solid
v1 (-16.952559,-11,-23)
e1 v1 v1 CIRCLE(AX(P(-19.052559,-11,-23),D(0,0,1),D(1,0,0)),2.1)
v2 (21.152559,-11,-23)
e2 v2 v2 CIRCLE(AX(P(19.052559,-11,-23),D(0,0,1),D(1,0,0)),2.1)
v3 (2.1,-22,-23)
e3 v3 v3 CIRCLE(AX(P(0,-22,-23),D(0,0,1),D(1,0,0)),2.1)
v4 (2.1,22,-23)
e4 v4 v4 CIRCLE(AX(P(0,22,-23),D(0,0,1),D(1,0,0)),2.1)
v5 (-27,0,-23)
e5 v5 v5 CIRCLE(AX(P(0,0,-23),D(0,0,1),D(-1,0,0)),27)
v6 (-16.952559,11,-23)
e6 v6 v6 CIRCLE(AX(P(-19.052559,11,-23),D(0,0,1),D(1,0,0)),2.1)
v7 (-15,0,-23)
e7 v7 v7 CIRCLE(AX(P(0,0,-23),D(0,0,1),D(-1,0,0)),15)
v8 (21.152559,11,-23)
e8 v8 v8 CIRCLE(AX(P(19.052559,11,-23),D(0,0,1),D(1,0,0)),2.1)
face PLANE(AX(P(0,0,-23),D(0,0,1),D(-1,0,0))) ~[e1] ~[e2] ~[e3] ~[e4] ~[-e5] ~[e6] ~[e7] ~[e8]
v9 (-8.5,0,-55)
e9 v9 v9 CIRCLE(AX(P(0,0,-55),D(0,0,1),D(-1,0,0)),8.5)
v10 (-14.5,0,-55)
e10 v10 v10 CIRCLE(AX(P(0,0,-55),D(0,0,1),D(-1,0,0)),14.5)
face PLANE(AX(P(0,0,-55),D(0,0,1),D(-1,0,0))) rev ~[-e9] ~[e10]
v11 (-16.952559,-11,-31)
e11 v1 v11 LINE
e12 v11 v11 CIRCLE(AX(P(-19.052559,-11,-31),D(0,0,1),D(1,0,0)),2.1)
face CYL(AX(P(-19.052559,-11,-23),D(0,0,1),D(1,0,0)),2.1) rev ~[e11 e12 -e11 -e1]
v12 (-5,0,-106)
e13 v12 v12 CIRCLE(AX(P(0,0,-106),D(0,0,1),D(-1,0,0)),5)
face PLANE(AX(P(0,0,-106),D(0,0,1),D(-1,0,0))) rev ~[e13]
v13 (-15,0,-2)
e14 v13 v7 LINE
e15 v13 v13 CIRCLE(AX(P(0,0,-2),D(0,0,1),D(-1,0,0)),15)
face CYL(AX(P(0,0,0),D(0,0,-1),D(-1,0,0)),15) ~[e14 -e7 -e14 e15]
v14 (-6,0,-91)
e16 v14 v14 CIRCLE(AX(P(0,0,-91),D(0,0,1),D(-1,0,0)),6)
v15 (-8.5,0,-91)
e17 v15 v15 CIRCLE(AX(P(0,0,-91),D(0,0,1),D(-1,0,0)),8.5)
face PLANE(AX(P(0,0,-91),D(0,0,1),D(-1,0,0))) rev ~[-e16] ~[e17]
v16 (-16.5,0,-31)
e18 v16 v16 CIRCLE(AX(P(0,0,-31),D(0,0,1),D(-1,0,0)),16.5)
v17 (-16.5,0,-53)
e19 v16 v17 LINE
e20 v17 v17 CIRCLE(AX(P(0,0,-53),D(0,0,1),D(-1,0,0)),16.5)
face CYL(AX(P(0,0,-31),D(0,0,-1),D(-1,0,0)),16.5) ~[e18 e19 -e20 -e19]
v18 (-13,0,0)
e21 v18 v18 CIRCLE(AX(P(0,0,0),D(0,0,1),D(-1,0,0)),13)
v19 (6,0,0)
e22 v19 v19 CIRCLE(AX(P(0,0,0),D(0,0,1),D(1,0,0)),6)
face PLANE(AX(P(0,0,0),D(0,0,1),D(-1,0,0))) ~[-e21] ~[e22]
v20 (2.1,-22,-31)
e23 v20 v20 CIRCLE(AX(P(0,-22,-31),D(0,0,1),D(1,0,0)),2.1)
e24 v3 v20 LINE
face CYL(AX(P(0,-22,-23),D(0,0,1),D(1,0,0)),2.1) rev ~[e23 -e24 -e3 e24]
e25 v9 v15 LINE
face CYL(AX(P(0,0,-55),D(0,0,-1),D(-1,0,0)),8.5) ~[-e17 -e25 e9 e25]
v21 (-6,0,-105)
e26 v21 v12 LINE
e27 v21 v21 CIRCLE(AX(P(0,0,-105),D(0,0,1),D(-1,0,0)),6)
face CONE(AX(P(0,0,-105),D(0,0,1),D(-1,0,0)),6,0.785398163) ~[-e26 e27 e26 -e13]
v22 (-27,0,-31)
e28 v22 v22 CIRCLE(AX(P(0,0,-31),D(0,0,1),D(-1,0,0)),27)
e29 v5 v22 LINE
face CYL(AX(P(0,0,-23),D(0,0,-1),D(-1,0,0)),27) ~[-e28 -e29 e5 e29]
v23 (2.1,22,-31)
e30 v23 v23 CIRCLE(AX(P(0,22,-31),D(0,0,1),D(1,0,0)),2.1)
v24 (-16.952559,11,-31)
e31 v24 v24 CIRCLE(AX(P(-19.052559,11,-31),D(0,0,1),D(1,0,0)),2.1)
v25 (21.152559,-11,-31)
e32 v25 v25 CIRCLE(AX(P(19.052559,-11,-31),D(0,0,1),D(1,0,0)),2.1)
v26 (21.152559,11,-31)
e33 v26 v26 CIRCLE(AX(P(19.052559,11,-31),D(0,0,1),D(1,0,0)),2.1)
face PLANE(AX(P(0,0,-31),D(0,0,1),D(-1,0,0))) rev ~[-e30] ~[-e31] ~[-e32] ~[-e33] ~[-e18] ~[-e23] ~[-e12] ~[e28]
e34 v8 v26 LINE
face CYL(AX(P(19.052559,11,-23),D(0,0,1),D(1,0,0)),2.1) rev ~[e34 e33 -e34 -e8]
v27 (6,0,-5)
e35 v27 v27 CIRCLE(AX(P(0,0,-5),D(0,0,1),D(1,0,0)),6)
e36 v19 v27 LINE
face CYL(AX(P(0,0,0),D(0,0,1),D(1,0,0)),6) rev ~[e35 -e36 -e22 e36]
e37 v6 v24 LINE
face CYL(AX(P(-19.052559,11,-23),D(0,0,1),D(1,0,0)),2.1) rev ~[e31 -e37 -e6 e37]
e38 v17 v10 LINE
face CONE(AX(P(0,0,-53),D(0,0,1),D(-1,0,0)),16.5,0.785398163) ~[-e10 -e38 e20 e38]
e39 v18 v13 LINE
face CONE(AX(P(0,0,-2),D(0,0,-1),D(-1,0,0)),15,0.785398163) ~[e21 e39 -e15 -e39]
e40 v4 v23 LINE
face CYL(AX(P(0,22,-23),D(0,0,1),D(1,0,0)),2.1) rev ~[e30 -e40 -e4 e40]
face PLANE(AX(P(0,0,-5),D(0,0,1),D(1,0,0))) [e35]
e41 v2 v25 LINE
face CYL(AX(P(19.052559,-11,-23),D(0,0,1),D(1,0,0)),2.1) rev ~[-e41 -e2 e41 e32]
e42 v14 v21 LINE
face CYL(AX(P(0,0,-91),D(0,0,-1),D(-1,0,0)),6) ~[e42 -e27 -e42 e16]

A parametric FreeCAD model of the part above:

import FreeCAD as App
import Part
import Sketcher

V = App.Vector


def edges_at(feature, points):
    """Names of the edges that pass closest to the given points."""
    edges = feature.Shape.Edges
    near = lambda p: min(range(len(edges)), key=lambda i: edges[i].distToShape(Part.Vertex(*p))[0])
    return sorted({f"Edge{near(p) + 1}" for p in points})

doc = App.newDocument("Part")
body = doc.addObject("PartDesign::Body", "Body")

sketch1 = doc.addObject("Sketcher::SketchObject", "Sketch")
body.addObject(sketch1)
sketch1.AttachmentSupport = (doc.XZ_Plane, [""])
sketch1.MapMode = "FlatFace"
sketch1.addGeometry(Part.LineSegment(V(0, -106, 0), V(0, 0, 0)), False)
sketch1.addGeometry(Part.LineSegment(V(0, 0, 0), V(-15, 0, 0)), False)
sketch1.addGeometry(Part.LineSegment(V(-15, 0, 0), V(-15, -23, 0)), False)
sketch1.addGeometry(Part.LineSegment(V(-15, -23, 0), V(-27, -23, 0)), False)
sketch1.addGeometry(Part.LineSegment(V(-27, -23, 0), V(-27, -31, 0)), False)
sketch1.addGeometry(Part.LineSegment(V(-27, -31, 0), V(-16.5, -31, 0)), False)
sketch1.addGeometry(Part.LineSegment(V(-16.5, -31, 0), V(-16.5, -55, 0)), False)
sketch1.addGeometry(Part.LineSegment(V(-16.5, -55, 0), V(-8.5, -55, 0)), False)
sketch1.addGeometry(Part.LineSegment(V(-8.5, -55, 0), V(-8.5, -91, 0)), False)
sketch1.addGeometry(Part.LineSegment(V(-8.5, -91, 0), V(-6, -91, 0)), False)
sketch1.addGeometry(Part.LineSegment(V(-6, -91, 0), V(-6, -106, 0)), False)
sketch1.addGeometry(Part.LineSegment(V(-6, -106, 0), V(0, -106, 0)), False)
sketch1.addConstraint(Sketcher.Constraint("Coincident", 0, 2, 1, 1))
sketch1.addConstraint(Sketcher.Constraint("Coincident", 1, 2, 2, 1))
sketch1.addConstraint(Sketcher.Constraint("Coincident", 2, 2, 3, 1))
sketch1.addConstraint(Sketcher.Constraint("Coincident", 3, 2, 4, 1))
sketch1.addConstraint(Sketcher.Constraint("Coincident", 4, 2, 5, 1))
sketch1.addConstraint(Sketcher.Constraint("Coincident", 5, 2, 6, 1))
sketch1.addConstraint(Sketcher.Constraint("Coincident", 6, 2, 7, 1))
sketch1.addConstraint(Sketcher.Constraint("Coincident", 7, 2, 8, 1))
sketch1.addConstraint(Sketcher.Constraint("Coincident", 8, 2, 9, 1))
sketch1.addConstraint(Sketcher.Constraint("Coincident", 9, 2, 10, 1))
sketch1.addConstraint(Sketcher.Constraint("Coincident", 10, 2, 11, 1))
sketch1.addConstraint(Sketcher.Constraint("Coincident", 11, 2, 0, 1))
sketch1.addConstraint(Sketcher.Constraint("Vertical", 0))
sketch1.addConstraint(Sketcher.Constraint("Horizontal", 1))
sketch1.addConstraint(Sketcher.Constraint("Vertical", 2))
sketch1.addConstraint(Sketcher.Constraint("Horizontal", 3))
sketch1.addConstraint(Sketcher.Constraint("Vertical", 4))
sketch1.addConstraint(Sketcher.Constraint("Horizontal", 5))
sketch1.addConstraint(Sketcher.Constraint("Vertical", 6))
sketch1.addConstraint(Sketcher.Constraint("Horizontal", 7))
sketch1.addConstraint(Sketcher.Constraint("Vertical", 8))
sketch1.addConstraint(Sketcher.Constraint("Horizontal", 9))
sketch1.addConstraint(Sketcher.Constraint("Vertical", 10))
sketch1.addConstraint(Sketcher.Constraint("Horizontal", 11))
sketch1.addConstraint(Sketcher.Constraint("Coincident", 0, 2, -1, 1))
sketch1.addConstraint(Sketcher.Constraint("Equal", 7, 4))
sketch1.addConstraint(Sketcher.Constraint("Equal", 1, 10))
sketch1.addConstraint(Sketcher.Constraint("DistanceX", 1, 2, 1, 1, 15.0))
sketch1.addConstraint(Sketcher.Constraint("DistanceX", 3, 2, 3, 1, 12.0))
sketch1.addConstraint(Sketcher.Constraint("DistanceX", 7, 1, 7, 2, 8.0))
sketch1.addConstraint(Sketcher.Constraint("DistanceX", 11, 1, 11, 2, 6.0))
sketch1.addConstraint(Sketcher.Constraint("DistanceY", 0, 1, 0, 2, 106.0))
sketch1.addConstraint(Sketcher.Constraint("DistanceY", 2, 2, 2, 1, 23.0))
sketch1.addConstraint(Sketcher.Constraint("DistanceY", 6, 2, 6, 1, 24.0))
sketch1.addConstraint(Sketcher.Constraint("DistanceX", 5, 1, 5, 2, 10.5))
revolution = doc.addObject("PartDesign::Revolution", "Revolution")
body.addObject(revolution)
revolution.Profile = sketch1
revolution.ReferenceAxis = (sketch1, ["V_Axis"])
revolution.Angle = 360
doc.recompute()

chamfer = doc.addObject("PartDesign::Chamfer", "Chamfer")
body.addObject(chamfer)
chamfer.Base = (revolution, edges_at(revolution, [(15, 0, 0), (16.5, 0, -55)]))
chamfer.Size = 2
doc.recompute()

chamfer2 = doc.addObject("PartDesign::Chamfer", "Chamfer001")
body.addObject(chamfer2)
chamfer2.Base = (chamfer, edges_at(chamfer, [(6, 0, -106)]))
chamfer2.Size = 1

sketch2 = doc.addObject("Sketcher::SketchObject", "Sketch001")
body.addObject(sketch2)
sketch2.AttachmentSupport = (doc.XY_Plane, [""])
sketch2.MapMode = "FlatFace"
sketch2.addGeometry(Part.Circle(V(0, 0, 0), V(0, 0, 1), 6), False)
sketch2.addConstraint(Sketcher.Constraint("Coincident", 0, 3, -1, 1))
sketch2.addConstraint(Sketcher.Constraint("Diameter", 0, 12.0))
pocket1 = doc.addObject("PartDesign::Pocket", "Pocket")
body.addObject(pocket1)
pocket1.Profile = sketch2
pocket1.Length = 5

sketch3 = doc.addObject("Sketcher::SketchObject", "Sketch002")
body.addObject(sketch3)
sketch3.AttachmentSupport = (doc.XY_Plane, [""])
sketch3.MapMode = "FlatFace"
sketch3.AttachmentOffset = App.Placement(V(0, 0, -23), App.Rotation())
sketch3.addGeometry(Part.Circle(V(0, 22, 0), V(0, 0, 1), 2.1), False)
sketch3.addGeometry(Part.Circle(V(-19.1, 11, 0), V(0, 0, 1), 2.1), False)
sketch3.addGeometry(Part.Circle(V(-19.1, -11, 0), V(0, 0, 1), 2.1), False)
sketch3.addGeometry(Part.Circle(V(0, -22, 0), V(0, 0, 1), 2.1), False)
sketch3.addGeometry(Part.Circle(V(19.1, -11, 0), V(0, 0, 1), 2.1), False)
sketch3.addGeometry(Part.Circle(V(19.1, 11, 0), V(0, 0, 1), 2.1), False)
sketch3.addConstraint(Sketcher.Constraint("Equal", 0, 1))
sketch3.addConstraint(Sketcher.Constraint("Equal", 1, 2))
sketch3.addConstraint(Sketcher.Constraint("Equal", 2, 3))
sketch3.addConstraint(Sketcher.Constraint("Equal", 3, 4))
sketch3.addConstraint(Sketcher.Constraint("Equal", 4, 5))
sketch3.addConstraint(Sketcher.Constraint("Symmetric", 0, 3, 3, 3, -1, 1))
sketch3.addConstraint(Sketcher.Constraint("Symmetric", 1, 3, 4, 3, -1, 1))
sketch3.addConstraint(Sketcher.Constraint("Symmetric", 2, 3, 5, 3, -1, 1))
sketch3.addConstraint(Sketcher.Constraint("Symmetric", 2, 3, 4, 3, -2))
sketch3.addConstraint(Sketcher.Constraint("PointOnObject", 0, 3, -2))
sketch3.addConstraint(Sketcher.Constraint("Diameter", 0, 4.2))
sketch3.addConstraint(Sketcher.Constraint("DistanceY", -1, 1, 0, 3, 22.0))
sketch3.addConstraint(Sketcher.Constraint("DistanceY", -1, 1, 1, 3, 11.0))
sketch3.addConstraint(Sketcher.Constraint("DistanceX", 1, 3, -1, 1, 19.052559))
pocket2 = doc.addObject("PartDesign::Pocket", "Pocket001")
body.addObject(pocket2)
pocket2.Profile = sketch3
pocket2.Length = 10

doc.recompute()
